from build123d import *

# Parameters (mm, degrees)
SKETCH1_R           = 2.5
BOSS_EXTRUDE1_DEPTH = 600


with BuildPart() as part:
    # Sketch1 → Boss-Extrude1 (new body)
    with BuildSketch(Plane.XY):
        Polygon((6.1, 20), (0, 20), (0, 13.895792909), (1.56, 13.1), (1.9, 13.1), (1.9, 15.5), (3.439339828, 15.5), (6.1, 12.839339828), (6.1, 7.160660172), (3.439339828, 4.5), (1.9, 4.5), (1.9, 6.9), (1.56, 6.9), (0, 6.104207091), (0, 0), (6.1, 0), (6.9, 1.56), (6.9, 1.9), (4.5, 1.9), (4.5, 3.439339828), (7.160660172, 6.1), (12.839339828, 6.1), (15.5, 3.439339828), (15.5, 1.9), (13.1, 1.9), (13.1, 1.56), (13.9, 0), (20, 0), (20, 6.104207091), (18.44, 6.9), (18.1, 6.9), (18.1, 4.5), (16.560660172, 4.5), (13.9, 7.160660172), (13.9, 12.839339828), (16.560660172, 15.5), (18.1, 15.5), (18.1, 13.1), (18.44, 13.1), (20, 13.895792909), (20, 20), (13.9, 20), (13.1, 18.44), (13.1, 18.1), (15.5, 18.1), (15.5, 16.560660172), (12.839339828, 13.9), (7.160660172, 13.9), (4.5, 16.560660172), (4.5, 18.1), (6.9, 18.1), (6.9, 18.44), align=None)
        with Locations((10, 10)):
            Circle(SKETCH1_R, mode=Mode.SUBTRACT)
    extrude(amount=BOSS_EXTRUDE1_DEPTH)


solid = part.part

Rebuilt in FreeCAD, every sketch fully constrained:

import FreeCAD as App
import Part
import Sketcher

V = App.Vector
Q = App.Units.Quantity


def add_polygon(sketch, points):
    """Adds a closed chain of lines whose ends are joined by coincident constraints."""
    first, n = sketch.GeometryCount, len(points)
    for a, b in zip(points, points[1:] + points[:1]):
        sketch.addGeometry(Part.LineSegment(App.Vector(*a, 0), App.Vector(*b, 0)), False)
    for i in range(n):
        sketch.addConstraint(Sketcher.Constraint("Coincident", first + i, 2, first + (i + 1) % n, 1))

doc = App.newDocument("Part")
body = doc.addObject("PartDesign::Body", "Body")

# Sketch on XY plane
sketch1 = doc.addObject("Sketcher::SketchObject", "Sketch")
body.addObject(sketch1)
sketch1.AttachmentSupport = (doc.XY_Plane, [""])
sketch1.MapMode = "FlatFace"
add_polygon(sketch1, [(6.1, 20), (0, 20), (0, 13.9), (1.56, 13.1), (1.9, 13.1), (1.9, 15.5), (3.44, 15.5), (6.1, 12.84), (6.1, 7.16), (3.44, 4.5), (1.9, 4.5), (1.9, 6.9), (1.56, 6.9), (0, 6.1), (0, 0), (6.1, 0), (6.9, 1.56), (6.9, 1.9), (4.5, 1.9), (4.5, 3.44), (7.16, 6.1), (12.84, 6.1), (15.5, 3.44), (15.5, 1.9), (13.1, 1.9), (13.1, 1.56), (13.9, 0), (20, 0), (20, 6.1), (18.44, 6.9), (18.1, 6.9), (18.1, 4.5), (16.56, 4.5), (13.9, 7.16), (13.9, 12.84), (16.56, 15.5), (18.1, 15.5), (18.1, 13.1), (18.44, 13.1), (20, 13.9), (20, 20), (13.9, 20), (13.1, 18.44), (13.1, 18.1), (15.5, 18.1), (15.5, 16.56), (12.84, 13.9), (7.16, 13.9), (4.5, 16.56), (4.5, 18.1), (6.9, 18.1), (6.9, 18.44)])  # lines 0-51
sketch1.addGeometry(Part.Circle(V(10, 10, 0), V(0, 0, 1), 2.5), False)  # 52
sketch1.addConstraint(Sketcher.Constraint("Horizontal", 0))
sketch1.addConstraint(Sketcher.Constraint("Vertical", 1))
sketch1.addConstraint(Sketcher.Constraint("Horizontal", 3))
sketch1.addConstraint(Sketcher.Constraint("Vertical", 4))
sketch1.addConstraint(Sketcher.Constraint("Horizontal", 5))
sketch1.addConstraint(Sketcher.Constraint("Vertical", 7))
sketch1.addConstraint(Sketcher.Constraint("Horizontal", 9))
sketch1.addConstraint(Sketcher.Constraint("Vertical", 10))
sketch1.addConstraint(Sketcher.Constraint("Horizontal", 11))
sketch1.addConstraint(Sketcher.Constraint("Vertical", 13))
sketch1.addConstraint(Sketcher.Constraint("Horizontal", 14))
sketch1.addConstraint(Sketcher.Constraint("Vertical", 16))
sketch1.addConstraint(Sketcher.Constraint("Horizontal", 17))
sketch1.addConstraint(Sketcher.Constraint("Vertical", 18))
sketch1.addConstraint(Sketcher.Constraint("Horizontal", 20))
sketch1.addConstraint(Sketcher.Constraint("Vertical", 22))
sketch1.addConstraint(Sketcher.Constraint("Horizontal", 23))
sketch1.addConstraint(Sketcher.Constraint("Vertical", 24))
sketch1.addConstraint(Sketcher.Constraint("Horizontal", 26))
sketch1.addConstraint(Sketcher.Constraint("Vertical", 27))
sketch1.addConstraint(Sketcher.Constraint("Horizontal", 29))
sketch1.addConstraint(Sketcher.Constraint("Vertical", 30))
sketch1.addConstraint(Sketcher.Constraint("Horizontal", 31))
sketch1.addConstraint(Sketcher.Constraint("Vertical", 33))
sketch1.addConstraint(Sketcher.Constraint("Horizontal", 35))
sketch1.addConstraint(Sketcher.Constraint("Vertical", 36))
sketch1.addConstraint(Sketcher.Constraint("Horizontal", 37))
sketch1.addConstraint(Sketcher.Constraint("Vertical", 39))
sketch1.addConstraint(Sketcher.Constraint("Horizontal", 40))
sketch1.addConstraint(Sketcher.Constraint("Vertical", 42))
sketch1.addConstraint(Sketcher.Constraint("Horizontal", 43))
sketch1.addConstraint(Sketcher.Constraint("Vertical", 44))
sketch1.addConstraint(Sketcher.Constraint("Horizontal", 46))
sketch1.addConstraint(Sketcher.Constraint("Vertical", 48))
sketch1.addConstraint(Sketcher.Constraint("Horizontal", 49))
sketch1.addConstraint(Sketcher.Constraint("Vertical", 50))
sketch1.addConstraint(Sketcher.Constraint("Coincident", 13, 2, -1, 1))
sketch1.addConstraint(Sketcher.Constraint("PointOnObject", 0, 2, -2))
sketch1.addConstraint(Sketcher.Constraint("PointOnObject", 25, 2, -1))
sketch1.addConstraint(Sketcher.Constraint("Perpendicular", 6, 8))
sketch1.addConstraint(Sketcher.Constraint("Parallel", 8, 19))
sketch1.addConstraint(Sketcher.Constraint("Perpendicular", 19, 21))
sketch1.addConstraint(Sketcher.Constraint("Parallel", 2, 28))
sketch1.addConstraint(Sketcher.Constraint("Parallel", 21, 32))
sketch1.addConstraint(Sketcher.Constraint("Perpendicular", 32, 34))
sketch1.addConstraint(Sketcher.Constraint("Parallel", 12, 38))
sketch1.addConstraint(Sketcher.Constraint("Parallel", 15, 41))
sketch1.addConstraint(Sketcher.Constraint("Parallel", 34, 45))
sketch1.addConstraint(Sketcher.Constraint("Perpendicular", 45, 47))
sketch1.addConstraint(Sketcher.Constraint("Parallel", 25, 51))
sketch1.addConstraint(Sketcher.Constraint("Horizontal", 18, 2, 21, 2))
sketch1.addConstraint(Sketcher.Constraint("Horizontal", 17, 2, 22, 2))
sketch1.addConstraint(Sketcher.Constraint("Horizontal", 15, 2, 24, 2))
sketch1.addConstraint(Sketcher.Constraint("Horizontal", 12, 2, 27, 2))
sketch1.addConstraint(Sketcher.Constraint("Horizontal", 11, 2, 28, 2))
sketch1.addConstraint(Sketcher.Constraint("Horizontal", 9, 2, 30, 2))
sketch1.addConstraint(Sketcher.Constraint("Horizontal", 7, 2, 32, 2))
sketch1.addConstraint(Sketcher.Constraint("Horizontal", 6, 2, 33, 2))
sketch1.addConstraint(Sketcher.Constraint("Horizontal", 5, 2, 34, 2))
sketch1.addConstraint(Sketcher.Constraint("Horizontal", 3, 2, 36, 2))
sketch1.addConstraint(Sketcher.Constraint("Horizontal", 1, 2, 38, 2))
sketch1.addConstraint(Sketcher.Constraint("Horizontal", 0, 2, 39, 2))
sketch1.addConstraint(Sketcher.Constraint("Horizontal", 44, 2, 47, 2))
sketch1.addConstraint(Sketcher.Constraint("Horizontal", 43, 2, 48, 2))
sketch1.addConstraint(Sketcher.Constraint("Horizontal", 41, 2, 50, 2))
sketch1.addConstraint(Sketcher.Constraint("Vertical", 5, 2, 8, 2))
sketch1.addConstraint(Sketcher.Constraint("Vertical", 4, 2, 9, 2))
sketch1.addConstraint(Sketcher.Constraint("Vertical", 2, 2, 11, 2))
sketch1.addConstraint(Sketcher.Constraint("Vertical", 7, 2, 14, 2))
sketch1.addConstraint(Sketcher.Constraint("Vertical", 25, 2, 32, 2))
sketch1.addConstraint(Sketcher.Constraint("Vertical", 31, 2, 34, 2))
sketch1.addConstraint(Sketcher.Constraint("Vertical", 30, 2, 35, 2))
sketch1.addConstraint(Sketcher.Constraint("Vertical", 28, 2, 37, 2))
sketch1.addConstraint(Sketcher.Constraint("Vertical", 27, 2, 38, 2))
sketch1.addConstraint(Sketcher.Constraint("Vertical", 33, 2, 40, 2))
sketch1.addConstraint(Sketcher.Constraint("Vertical", 24, 2, 41, 2))
sketch1.addConstraint(Sketcher.Constraint("Vertical", 22, 2, 43, 2))
sketch1.addConstraint(Sketcher.Constraint("Vertical", 20, 2, 45, 2))
sketch1.addConstraint(Sketcher.Constraint("Vertical", 19, 2, 46, 2))
sketch1.addConstraint(Sketcher.Constraint("Vertical", 16, 2, 49, 2))
sketch1.addConstraint(Sketcher.Constraint("Vertical", 14, 2, 51, 2))
sketch1.addConstraint(Sketcher.Constraint("Equal", 17, 23))
sketch1.addConstraint(Sketcher.Constraint("Equal", 14, 26))
sketch1.addConstraint(Sketcher.Constraint("Equal", 11, 29))
sketch1.addConstraint(Sketcher.Constraint("Equal", 49, 4))
sketch1.addConstraint(Sketcher.Constraint("Equal", 46, 7))
sketch1.addConstraint(Sketcher.Constraint("Equal", 4, 10))
sketch1.addConstraint(Sketcher.Constraint("Equal", 1, 13))
sketch1.addConstraint(Sketcher.Constraint("Equal", 37, 16))
sketch1.addConstraint(Sketcher.Constraint("Equal", 35, 18))
sketch1.addConstraint(Sketcher.Constraint("Equal", 24, 42))
sketch1.addConstraint(Sketcher.Constraint("Equal", 22, 44))
sketch1.addConstraint(Sketcher.Constraint("Equal", 8, 19))
sketch1.addConstraint(Sketcher.Constraint("Diameter", 52, Q("5 mm")))
sketch1.addConstraint(Sketcher.Constraint("DistanceX", 0, 2, 0, 1, Q("6.1 mm")))
sketch1.addConstraint(Sketcher.Constraint("DistanceX", 17, 2, 17, 1, Q("2.4 mm")))
sketch1.addConstraint(Sketcher.Constraint("DistanceX", -1, 1, 52, 3, Q("10 mm")))
sketch1.addConstraint(Sketcher.Constraint("DistanceY", -1, 1, 52, 3, Q("10 mm")))
sketch1.addConstraint(Sketcher.Constraint("DistanceY", -1, 1, 0, 2, Q("20 mm")))
sketch1.addConstraint(Sketcher.Constraint("DistanceX", -1, 1, 26, 2, Q("20 mm")))
sketch1.addConstraint(Sketcher.Constraint("DistanceX", 9, 2, 15, 2, Q("5 mm")))
sketch1.addConstraint(Sketcher.Constraint("DistanceY", 22, 2, 28, 2, Q("5 mm")))
sketch1.addConstraint(Sketcher.Constraint("DistanceX", 3, 1, 3, 2, Q("0.34 mm")))
sketch1.addConstraint(Sketcher.Constraint("DistanceY", -1, 1, 2, 2, Q("13.1 mm")))
sketch1.addConstraint(Sketcher.Constraint("DistanceX", 5, 1, 5, 2, Q("1.53934 mm")))
sketch1.addConstraint(Sketcher.Constraint("DistanceY", 1, 2, 1, 1, Q("6.104207 mm")))
pad1 = doc.addObject("PartDesign::Pad", "Pad")
body.addObject(pad1)
pad1.Profile = sketch1
pad1.Length = 600

doc.recompute()
